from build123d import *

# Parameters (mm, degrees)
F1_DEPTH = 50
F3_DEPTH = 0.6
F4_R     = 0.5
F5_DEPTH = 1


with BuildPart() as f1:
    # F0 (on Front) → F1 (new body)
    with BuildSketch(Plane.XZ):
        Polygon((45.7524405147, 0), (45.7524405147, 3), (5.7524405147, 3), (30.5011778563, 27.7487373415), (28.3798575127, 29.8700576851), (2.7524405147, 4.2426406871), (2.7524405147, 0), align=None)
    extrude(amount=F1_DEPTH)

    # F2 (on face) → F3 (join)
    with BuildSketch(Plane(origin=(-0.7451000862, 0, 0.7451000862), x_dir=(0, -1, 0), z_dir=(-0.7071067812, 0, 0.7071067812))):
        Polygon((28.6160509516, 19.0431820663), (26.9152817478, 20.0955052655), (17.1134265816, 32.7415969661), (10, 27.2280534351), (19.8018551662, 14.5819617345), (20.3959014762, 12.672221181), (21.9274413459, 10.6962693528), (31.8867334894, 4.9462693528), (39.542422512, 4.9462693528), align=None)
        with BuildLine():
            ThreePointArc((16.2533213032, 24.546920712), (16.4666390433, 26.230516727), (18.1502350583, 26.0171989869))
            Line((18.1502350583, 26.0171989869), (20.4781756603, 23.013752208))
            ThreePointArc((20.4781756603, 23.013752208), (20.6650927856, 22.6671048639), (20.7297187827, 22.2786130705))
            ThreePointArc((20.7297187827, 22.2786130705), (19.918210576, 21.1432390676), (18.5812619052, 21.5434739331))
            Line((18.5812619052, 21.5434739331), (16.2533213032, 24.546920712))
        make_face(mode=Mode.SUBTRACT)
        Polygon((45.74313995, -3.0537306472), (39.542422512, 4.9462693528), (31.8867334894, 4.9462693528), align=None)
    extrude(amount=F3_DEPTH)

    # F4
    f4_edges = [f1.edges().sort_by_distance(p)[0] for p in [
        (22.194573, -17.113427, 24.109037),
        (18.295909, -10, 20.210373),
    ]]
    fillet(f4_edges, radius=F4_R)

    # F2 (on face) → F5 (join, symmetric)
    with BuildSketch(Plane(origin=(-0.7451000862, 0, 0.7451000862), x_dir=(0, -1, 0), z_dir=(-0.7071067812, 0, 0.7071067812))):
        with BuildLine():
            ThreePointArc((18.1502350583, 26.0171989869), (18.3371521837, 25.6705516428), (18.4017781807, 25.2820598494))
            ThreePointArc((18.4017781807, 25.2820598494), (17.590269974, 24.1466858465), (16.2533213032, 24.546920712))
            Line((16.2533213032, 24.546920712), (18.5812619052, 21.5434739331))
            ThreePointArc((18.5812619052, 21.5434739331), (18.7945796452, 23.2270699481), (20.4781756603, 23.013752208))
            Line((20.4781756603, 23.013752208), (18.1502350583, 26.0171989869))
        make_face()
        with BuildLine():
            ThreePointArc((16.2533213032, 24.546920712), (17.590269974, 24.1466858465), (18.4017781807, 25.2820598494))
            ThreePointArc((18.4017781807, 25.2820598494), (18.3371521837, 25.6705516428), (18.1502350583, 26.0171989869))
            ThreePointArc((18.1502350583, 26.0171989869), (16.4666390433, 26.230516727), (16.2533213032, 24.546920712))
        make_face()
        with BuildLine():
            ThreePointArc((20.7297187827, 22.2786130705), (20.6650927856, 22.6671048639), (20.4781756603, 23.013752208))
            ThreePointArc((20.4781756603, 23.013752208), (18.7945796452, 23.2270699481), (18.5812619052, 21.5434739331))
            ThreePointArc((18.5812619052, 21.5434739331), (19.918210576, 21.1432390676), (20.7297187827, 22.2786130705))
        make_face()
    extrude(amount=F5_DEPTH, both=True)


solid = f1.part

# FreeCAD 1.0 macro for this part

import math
import FreeCAD as App
import Part
import Sketcher
Q = App.Units.Quantity


def edges_at(feature, points):
    """Names of the edges that pass closest to the given points."""
    edges = feature.Shape.Edges
    near = lambda p: min(range(len(edges)), key=lambda i: edges[i].distToShape(Part.Vertex(*p))[0])
    return sorted({f"Edge{near(p) + 1}" for p in points})


def add_polygon(sketch, points):
    """Adds a closed chain of lines whose ends are joined by coincident constraints."""
    first, n = sketch.GeometryCount, len(points)
    for a, b in zip(points, points[1:] + points[:1]):
        sketch.addGeometry(Part.LineSegment(App.Vector(*a, 0), App.Vector(*b, 0)), False)
    for i in range(n):
        sketch.addConstraint(Sketcher.Constraint("Coincident", first + i, 2, first + (i + 1) % n, 1))

doc = App.newDocument("Part")
body = doc.addObject("PartDesign::Body", "Body")

sketch1 = body.newObject("Sketcher::SketchObject", "Sketch")
sketch1.AttachmentSupport = (doc.getObject("XZ_Plane"), [""])
sketch1.MapMode = "FlatFace"
add_polygon(sketch1, [(45.8, 0), (45.8, 3), (5.8, 3), (30.5, 27.7), (28.4, 29.9), (2.8, 4.2), (2.8, 0)])
sketch1.addConstraint(Sketcher.Constraint("Vertical", 0))
sketch1.addConstraint(Sketcher.Constraint("Horizontal", 1))
sketch1.addConstraint(Sketcher.Constraint("Vertical", 5))
sketch1.addConstraint(Sketcher.Constraint("Horizontal", 6))
sketch1.addConstraint(Sketcher.Constraint("PointOnObject", 5, 2, -1))
sketch1.addConstraint(Sketcher.Constraint("Perpendicular", 2, 3))
sketch1.addConstraint(Sketcher.Constraint("Perpendicular", 3, 4))
sketch1.addConstraint(Sketcher.Constraint("DistanceX", 1, 2, 1, 1, 40.0))
sketch1.addConstraint(Sketcher.Constraint("DistanceX", 6, 1, 6, 2, 43.0))
sketch1.addConstraint(Sketcher.Constraint("DistanceY", 0, 1, 0, 2, 3.0))
sketch1.addConstraint(Sketcher.Constraint("Angle", 2, Q("45 deg")))
sketch1.addConstraint(Sketcher.Constraint("Distance", 2, 35.0))
sketch1.addConstraint(Sketcher.Constraint("Distance", 3, 3.0))
sketch1.addConstraint(Sketcher.Constraint("DistanceX", -1, 1, 0, 2, 45.752441))
pad1 = body.newObject("PartDesign::Pad", "Pad")
pad1.Profile = sketch1
pad1.Length = 50

sketch2 = body.newObject("Sketcher::SketchObject", "Sketch001")
sketch2.Placement = App.Placement(App.Vector(-0.7451, 0, 0.7451), App.Rotation(App.Vector(0, -1, 0), App.Vector(0.707106781, 0, 0.707106781), App.Vector(-0.707106781, 0, 0.707106781), "ZXY"))
add_polygon(sketch2, [(28.6, 19), (26.9, 20.1), (17.1, 32.7), (10, 27.2), (19.8, 14.6), (20.4, 12.7), (21.9, 10.7), (31.9, 4.9), (45.7, -3.1), (39.5, 4.9)])
sketch2.addGeometry(Part.LineSegment(App.Vector(18.6, 21.5, 0), App.Vector(16.3, 24.5, 0)), False)
sketch2.addGeometry(Part.ArcOfCircle(Part.Circle(App.Vector(17.2, 25.3, 0), App.Vector(0, 0, 1), 1.2), math.radians(38), math.radians(218)), False)
sketch2.addGeometry(Part.LineSegment(App.Vector(18.2, 26, 0), App.Vector(20.5, 23, 0)), False)
sketch2.addGeometry(Part.ArcOfCircle(Part.Circle(App.Vector(19.5, 22.3, 0), App.Vector(0, 0, 1), 1.2), math.radians(0), math.radians(38)), False)
sketch2.addGeometry(Part.ArcOfCircle(Part.Circle(App.Vector(19.5, 22.3, 0), App.Vector(0, 0, 1), 1.2), math.radians(-142), math.radians(0)), False)
sketch2.addConstraint(Sketcher.Constraint("Tangent", 10, 2, 11, 2))
sketch2.addConstraint(Sketcher.Constraint("Tangent", 11, 1, 12, 1))
sketch2.addConstraint(Sketcher.Constraint("Tangent", 12, 2, 13, 2))
sketch2.addConstraint(Sketcher.Constraint("Tangent", 13, 1, 14, 2))
sketch2.addConstraint(Sketcher.Constraint("Tangent", 14, 1, 10, 1))
sketch2.addConstraint(Sketcher.Constraint("Equal", 11, 13))
sketch2.addConstraint(Sketcher.Constraint("Equal", 13, 14))
sketch2.addConstraint(Sketcher.Constraint("Perpendicular", 1, 2))
sketch2.addConstraint(Sketcher.Constraint("Perpendicular", 2, 3))
sketch2.addConstraint(Sketcher.Constraint("Parallel", 3, 5))
sketch2.addConstraint(Sketcher.Constraint("Parallel", 6, 7))
sketch2.addConstraint(Sketcher.Constraint("Parallel", 5, 8))
sketch2.addConstraint(Sketcher.Constraint("Parallel", 8, 9))
sketch2.addConstraint(Sketcher.Constraint("Parallel", 9, 10))
sketch2.addConstraint(Sketcher.Constraint("Horizontal", 6, 2, 8, 2))
sketch2.addConstraint(Sketcher.Constraint("Horizontal", 14, 3, 13, 1))
sketch2.addConstraint(Sketcher.Constraint("Equal", 1, 3))
sketch2.addConstraint(Sketcher.Constraint("Equal", 0, 4))
sketch2.addConstraint(Sketcher.Constraint("Equal", 3, 7))
sketch2.addConstraint(Sketcher.Constraint("Radius", 11, 1.2))
sketch2.addConstraint(Sketcher.Constraint("Angle", 6, Q("-30 deg")))
sketch2.addConstraint(Sketcher.Constraint("Distance", 0, 2.0))
sketch2.addConstraint(Sketcher.Constraint("Distance", 1, 16.0))
sketch2.addConstraint(Sketcher.Constraint("Distance", 2, 9.0))
sketch2.addConstraint(Sketcher.Constraint("DistanceX", -1, 1, 2, 2, 10.0))
sketch2.addConstraint(Sketcher.Constraint("Distance", 5, 2.5))
sketch2.addConstraint(Sketcher.Constraint("Distance", 6, 11.5))
sketch2.addConstraint(Sketcher.Constraint("Distance", 10, 3.8))
sketch2.addConstraint(Sketcher.Constraint("DistanceX", -1, 1, 4, 2, 20.395901))
sketch2.addConstraint(Sketcher.Constraint("DistanceY", -1, 1, 11, 1, 26.017199))
sketch2.addConstraint(Sketcher.Constraint("DistanceY", 3, 2, 11, 3, 10.700098))
sketch2.addConstraint(Sketcher.Constraint("DistanceX", -1, 1, 11, 3, 17.201778))
sketch2.addConstraint(Sketcher.Constraint("DistanceY", -1, 1, 11, 3, 25.28206))
pad2 = body.newObject("PartDesign::Pad", "Pad001")
pad2.Profile = sketch2
pad2.Length = 0.6
doc.recompute()

fillet = body.newObject("PartDesign::Fillet", "Fillet")
fillet.Base = (pad2, edges_at(pad2, [(22.195, -17.113, 24.109), (18.296, -10, 20.21)]))
fillet.Radius = 0.5

sketch3 = body.newObject("Sketcher::SketchObject", "Sketch002")
sketch3.Placement = App.Placement(App.Vector(-0.7451, 0, 0.7451), App.Rotation(App.Vector(0, -1, 0), App.Vector(0.707106781, 0, 0.707106781), App.Vector(-0.707106781, 0, 0.707106781), "ZXY"))
sketch3.addGeometry(Part.LineSegment(App.Vector(16.3, 24.5, 0), App.Vector(18.6, 21.5, 0)), False)
sketch3.addGeometry(Part.ArcOfCircle(Part.Circle(App.Vector(19.5, 22.3, 0), App.Vector(0, 0, 1), 1.2), math.radians(-142), math.radians(0)), False)
sketch3.addGeometry(Part.ArcOfCircle(Part.Circle(App.Vector(19.5, 22.3, 0), App.Vector(0, 0, 1), 1.2), math.radians(0), math.radians(38)), False)
sketch3.addGeometry(Part.LineSegment(App.Vector(20.5, 23, 0), App.Vector(18.2, 26, 0)), False)
sketch3.addGeometry(Part.ArcOfCircle(Part.Circle(App.Vector(17.2, 25.3, 0), App.Vector(0, 0, 1), 1.2), math.radians(38), math.radians(218)), False)
sketch3.addConstraint(Sketcher.Constraint("Tangent", 0, 2, 1, 1))
sketch3.addConstraint(Sketcher.Constraint("Tangent", 1, 2, 2, 1))
sketch3.addConstraint(Sketcher.Constraint("Tangent", 2, 2, 3, 1))
sketch3.addConstraint(Sketcher.Constraint("Tangent", 3, 2, 4, 1))
sketch3.addConstraint(Sketcher.Constraint("Tangent", 4, 2, 0, 1))
sketch3.addConstraint(Sketcher.Constraint("Equal", 1, 2))
sketch3.addConstraint(Sketcher.Constraint("Equal", 2, 4))
sketch3.addConstraint(Sketcher.Constraint("Horizontal", 2, 3, 1, 2))
sketch3.addConstraint(Sketcher.Constraint("Radius", 1, 1.2))
sketch3.addConstraint(Sketcher.Constraint("Distance", 0, 3.8))
sketch3.addConstraint(Sketcher.Constraint("DistanceY", -1, 1, 3, 2, 26.017199))
sketch3.addConstraint(Sketcher.Constraint("DistanceX", -1, 1, 1, 3, 19.529719))
sketch3.addConstraint(Sketcher.Constraint("DistanceX", -1, 1, 4, 3, 17.201778))
pad3 = body.newObject("PartDesign::Pad", "Pad002")
pad3.Profile = sketch3
pad3.Length = 2
pad3.Midplane = True

doc.recompute()
